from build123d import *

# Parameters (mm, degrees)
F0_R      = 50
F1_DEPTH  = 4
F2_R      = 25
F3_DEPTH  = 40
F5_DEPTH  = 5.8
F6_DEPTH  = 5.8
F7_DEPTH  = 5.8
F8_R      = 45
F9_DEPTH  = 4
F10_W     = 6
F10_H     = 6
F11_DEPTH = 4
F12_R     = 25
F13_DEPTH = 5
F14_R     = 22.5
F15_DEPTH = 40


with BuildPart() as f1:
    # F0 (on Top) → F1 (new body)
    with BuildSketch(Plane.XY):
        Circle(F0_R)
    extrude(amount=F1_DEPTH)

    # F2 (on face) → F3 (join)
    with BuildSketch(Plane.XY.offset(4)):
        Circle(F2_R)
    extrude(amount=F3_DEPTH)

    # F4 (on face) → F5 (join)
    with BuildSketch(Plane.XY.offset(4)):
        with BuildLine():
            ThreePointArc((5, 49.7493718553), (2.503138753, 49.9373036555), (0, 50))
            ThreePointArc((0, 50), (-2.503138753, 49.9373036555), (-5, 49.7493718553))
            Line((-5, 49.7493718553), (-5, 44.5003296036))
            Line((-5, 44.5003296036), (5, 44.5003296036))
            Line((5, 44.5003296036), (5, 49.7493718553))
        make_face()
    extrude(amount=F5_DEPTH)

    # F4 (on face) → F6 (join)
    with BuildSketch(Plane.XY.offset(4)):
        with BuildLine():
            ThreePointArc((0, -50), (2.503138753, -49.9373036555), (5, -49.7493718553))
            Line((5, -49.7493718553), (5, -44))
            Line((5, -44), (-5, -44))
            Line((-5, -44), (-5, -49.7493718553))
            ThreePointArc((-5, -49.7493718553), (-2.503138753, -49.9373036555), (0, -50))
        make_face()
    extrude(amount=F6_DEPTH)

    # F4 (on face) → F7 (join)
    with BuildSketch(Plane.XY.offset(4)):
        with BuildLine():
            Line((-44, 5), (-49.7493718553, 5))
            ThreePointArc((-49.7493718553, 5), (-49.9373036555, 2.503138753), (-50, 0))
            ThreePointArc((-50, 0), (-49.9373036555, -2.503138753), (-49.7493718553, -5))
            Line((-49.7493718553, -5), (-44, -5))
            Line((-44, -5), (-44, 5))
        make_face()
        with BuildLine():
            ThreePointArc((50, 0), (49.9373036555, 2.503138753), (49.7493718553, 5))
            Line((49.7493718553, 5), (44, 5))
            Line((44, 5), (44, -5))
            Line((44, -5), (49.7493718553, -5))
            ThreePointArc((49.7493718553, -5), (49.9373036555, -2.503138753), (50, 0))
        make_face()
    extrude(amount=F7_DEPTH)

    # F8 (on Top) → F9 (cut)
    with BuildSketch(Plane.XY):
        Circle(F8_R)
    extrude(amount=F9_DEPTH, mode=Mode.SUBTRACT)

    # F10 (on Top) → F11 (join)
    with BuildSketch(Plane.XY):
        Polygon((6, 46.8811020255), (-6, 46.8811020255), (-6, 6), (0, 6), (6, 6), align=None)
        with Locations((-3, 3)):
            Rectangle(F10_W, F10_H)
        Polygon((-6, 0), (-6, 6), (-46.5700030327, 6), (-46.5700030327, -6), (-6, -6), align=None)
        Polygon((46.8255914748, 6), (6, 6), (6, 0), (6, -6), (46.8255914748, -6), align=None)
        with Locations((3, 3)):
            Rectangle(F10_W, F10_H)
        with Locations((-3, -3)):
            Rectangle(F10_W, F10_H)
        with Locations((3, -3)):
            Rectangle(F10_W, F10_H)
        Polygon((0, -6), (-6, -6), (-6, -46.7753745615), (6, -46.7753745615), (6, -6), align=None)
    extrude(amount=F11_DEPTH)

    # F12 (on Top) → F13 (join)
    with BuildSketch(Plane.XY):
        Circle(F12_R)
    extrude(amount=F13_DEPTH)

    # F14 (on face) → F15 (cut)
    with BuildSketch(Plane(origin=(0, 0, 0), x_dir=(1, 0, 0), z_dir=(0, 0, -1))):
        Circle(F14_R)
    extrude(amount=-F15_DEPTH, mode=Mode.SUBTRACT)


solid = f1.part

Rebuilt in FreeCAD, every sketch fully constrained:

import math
import FreeCAD as App
import Part
import Sketcher
from FreeCAD import Vector
Q = App.Units.Quantity


def add_polygon(sketch, points):
    """Adds a closed chain of lines whose ends are joined by coincident constraints."""
    first, n = sketch.GeometryCount, len(points)
    for a, b in zip(points, points[1:] + points[:1]):
        sketch.addGeometry(Part.LineSegment(App.Vector(*a, 0), App.Vector(*b, 0)), False)
    for i in range(n):
        sketch.addConstraint(Sketcher.Constraint("Coincident", first + i, 2, first + (i + 1) % n, 1))

doc = App.newDocument("Part")
body = doc.addObject("PartDesign::Body", "Body")
body.AllowCompound = True

# Sketch on XY plane
sketch1 = body.newObject("Sketcher::SketchObject", "Sketch")
sketch1.AttachmentSupport = (doc.getObject("XY_Plane"), [""])
sketch1.MapMode = "FlatFace"
sketch1.addGeometry(Part.Circle(Vector(0, 0, 0), Vector(0, 0, 1), 50), False)
sketch1.addConstraint([
    Sketcher.Constraint("Coincident", 0, 3, -1, 1),
    Sketcher.Constraint("Diameter", 0, Q("100 mm")),
])
pad1 = body.newObject("PartDesign::Pad", "Pad")
pad1.Profile = sketch1
pad1.Length = 4

# Sketch on XY plane
sketch2 = body.newObject("Sketcher::SketchObject", "Sketch001")
sketch2.AttachmentSupport = (doc.getObject("XY_Plane"), [""])
sketch2.MapMode = "FlatFace"
sketch2.AttachmentOffset = App.Placement(Vector(0, 0, 4), App.Rotation())
sketch2.addGeometry(Part.Circle(Vector(0, 0, 0), Vector(0, 0, 1), 25), False)
sketch2.addConstraint([
    Sketcher.Constraint("Coincident", 0, 3, -1, 1),
    Sketcher.Constraint("Diameter", 0, Q("50 mm")),
])
pad2 = body.newObject("PartDesign::Pad", "Pad001")
pad2.Profile = sketch2
pad2.Length = 40

# Sketch on XY plane
sketch3 = body.newObject("Sketcher::SketchObject", "Sketch002")
sketch3.AttachmentSupport = (doc.getObject("XY_Plane"), [""])
sketch3.MapMode = "FlatFace"
sketch3.AttachmentOffset = App.Placement(Vector(0, 0, 4), App.Rotation())
sketch3.addGeometry([
    Part.ArcOfCircle(Part.Circle(Vector(0, 0, 0), Vector(0, 0, 1), 50), math.radians(84.26), math.radians(90)),  # 0
    Part.ArcOfCircle(Part.Circle(Vector(0, 0, 0), Vector(0, 0, 1), 50), math.radians(90), math.radians(95.74)),  # 1
    Part.LineSegment(Vector(-5, 50, 0), Vector(-5, 45, 0)),  # 2
    Part.LineSegment(Vector(-5, 45, 0), Vector(5, 45, 0)),  # 3
    Part.LineSegment(Vector(5, 45, 0), Vector(5, 50, 0)),  # 4
], False)
sketch3.addConstraint([
    Sketcher.Constraint("Tangent", 0, 2, 1, 1),
    Sketcher.Constraint("Coincident", 1, 2, 2, 1),
    Sketcher.Constraint("Coincident", 2, 2, 3, 1),
    Sketcher.Constraint("Coincident", 3, 2, 4, 1),
    Sketcher.Constraint("Coincident", 4, 2, 0, 1),
    Sketcher.Constraint("Vertical", 2),
    Sketcher.Constraint("Horizontal", 3),
    Sketcher.Constraint("Vertical", 4),
    Sketcher.Constraint("Coincident", 0, 3, -1, 1),
    Sketcher.Constraint("Equal", 0, 1),
    Sketcher.Constraint("PointOnObject", 0, 2, -2),
    Sketcher.Constraint("Horizontal", 1, 2, 4, 2),
    Sketcher.Constraint("Radius", 0, Q("50 mm")),
    Sketcher.Constraint("DistanceX", 3, 1, 3, 2, Q("10 mm")),
    Sketcher.Constraint("DistanceY", 2, 2, 2, 1, Q("5.249042 mm")),
])
pad3 = body.newObject("PartDesign::Pad", "Pad002")
pad3.Profile = sketch3
pad3.Length = 5.8

# Sketch on XY plane
sketch4 = body.newObject("Sketcher::SketchObject", "Sketch003")
sketch4.AttachmentSupport = (doc.getObject("XY_Plane"), [""])
sketch4.MapMode = "FlatFace"
sketch4.AttachmentOffset = App.Placement(Vector(0, 0, 4), App.Rotation())
sketch4.addGeometry([
    Part.ArcOfCircle(Part.Circle(Vector(0, 0, 0), Vector(0, 0, 1), 50), math.radians(-90), math.radians(-84.26)),  # 0
    Part.LineSegment(Vector(5, -50, 0), Vector(5, -44, 0)),  # 1
    Part.LineSegment(Vector(5, -44, 0), Vector(-5, -44, 0)),  # 2
    Part.LineSegment(Vector(-5, -44, 0), Vector(-5, -50, 0)),  # 3
    Part.ArcOfCircle(Part.Circle(Vector(0, 0, 0), Vector(0, 0, 1), 50), math.radians(-95.74), math.radians(-90)),  # 4
], False)
sketch4.addConstraint([
    Sketcher.Constraint("Coincident", 0, 2, 1, 1),
    Sketcher.Constraint("Coincident", 1, 2, 2, 1),
    Sketcher.Constraint("Coincident", 2, 2, 3, 1),
    Sketcher.Constraint("Coincident", 3, 2, 4, 1),
    Sketcher.Constraint("Tangent", 4, 2, 0, 1),
    Sketcher.Constraint("Vertical", 1),
    Sketcher.Constraint("Horizontal", 2),
    Sketcher.Constraint("Vertical", 3),
    Sketcher.Constraint("Coincident", 0, 3, -1, 1),
    Sketcher.Constraint("Equal", 0, 4),
    Sketcher.Constraint("PointOnObject", 4, 2, -2),
    Sketcher.Constraint("Horizontal", 0, 2, 3, 2),
    Sketcher.Constraint("Radius", 0, Q("50 mm")),
    Sketcher.Constraint("DistanceX", 2, 2, 2, 1, Q("10 mm")),
    Sketcher.Constraint("DistanceY", 1, 2, -1, 1, Q("44 mm")),
])
pad4 = body.newObject("PartDesign::Pad", "Pad003")
pad4.Profile = sketch4
pad4.Length = 5.8

# Sketch on XY plane
sketch5 = body.newObject("Sketcher::SketchObject", "Sketch004")
sketch5.AttachmentSupport = (doc.getObject("XY_Plane"), [""])
sketch5.MapMode = "FlatFace"
sketch5.AttachmentOffset = App.Placement(Vector(0, 0, 4), App.Rotation())
sketch5.addGeometry([
    Part.LineSegment(Vector(-44, 5, 0), Vector(-50, 5, 0)),  # 0
    Part.ArcOfCircle(Part.Circle(Vector(0, 0, 0), Vector(0, 0, 1), 50), math.radians(174.26), math.radians(180)),  # 1
    Part.ArcOfCircle(Part.Circle(Vector(0, 0, 0), Vector(0, 0, 1), 50), math.radians(180), math.radians(185.74)),  # 2
    Part.LineSegment(Vector(-50, -5, 0), Vector(-44, -5, 0)),  # 3
    Part.LineSegment(Vector(-44, -5, 0), Vector(-44, 5, 0)),  # 4
    Part.ArcOfCircle(Part.Circle(Vector(0, 0, 0), Vector(0, 0, 1), 50), math.radians(0), math.radians(5.74)),  # 5
    Part.LineSegment(Vector(50, 5, 0), Vector(44, 5, 0)),  # 6
    Part.LineSegment(Vector(44, 5, 0), Vector(44, -5, 0)),  # 7
    Part.LineSegment(Vector(44, -5, 0), Vector(50, -5, 0)),  # 8
    Part.ArcOfCircle(Part.Circle(Vector(0, 0, 0), Vector(0, 0, 1), 50), math.radians(-5.74), math.radians(0)),  # 9
], False)
sketch5.addConstraint([
    Sketcher.Constraint("Coincident", 0, 2, 1, 1),
    Sketcher.Constraint("Tangent", 1, 2, 2, 1),
    Sketcher.Constraint("Coincident", 2, 2, 3, 1),
    Sketcher.Constraint("Coincident", 3, 2, 4, 1),
    Sketcher.Constraint("Coincident", 4, 2, 0, 1),
    Sketcher.Constraint("Coincident", 5, 2, 6, 1),
    Sketcher.Constraint("Coincident", 6, 2, 7, 1),
    Sketcher.Constraint("Coincident", 7, 2, 8, 1),
    Sketcher.Constraint("Coincident", 8, 2, 9, 1),
    Sketcher.Constraint("Tangent", 9, 2, 5, 1),
    Sketcher.Constraint("Horizontal", 0),
    Sketcher.Constraint("Horizontal", 3),
    Sketcher.Constraint("Vertical", 4),
    Sketcher.Constraint("Horizontal", 6),
    Sketcher.Constraint("Vertical", 7),
    Sketcher.Constraint("Horizontal", 8),
    Sketcher.Constraint("Coincident", 1, 3, -1, 1),
    Sketcher.Constraint("Coincident", 5, 3, -1, 1),
    Sketcher.Constraint("Equal", 1, 2),
    Sketcher.Constraint("Equal", 2, 5),
    Sketcher.Constraint("Equal", 5, 9),
    Sketcher.Constraint("Symmetric", 3, 2, 6, 2, -1, 1),
    Sketcher.Constraint("PointOnObject", 1, 2, -1),
    Sketcher.Constraint("PointOnObject", 9, 2, -1),
    Sketcher.Constraint("Horizontal", 4, 2, 5, 2),
    Sketcher.Constraint("Horizontal", 3, 2, 7, 2),
    Sketcher.Constraint("Radius", 1, Q("50 mm")),
    Sketcher.Constraint("DistanceY", 4, 1, 4, 2, Q("10 mm")),
    Sketcher.Constraint("DistanceX", 3, 2, -1, 1, Q("44 mm")),
])
pad5 = body.newObject("PartDesign::Pad", "Pad004")
pad5.Profile = sketch5
pad5.Length = 5.8

# Sketch on XY plane
sketch6 = body.newObject("Sketcher::SketchObject", "Sketch005")
sketch6.AttachmentSupport = (doc.getObject("XY_Plane"), [""])
sketch6.MapMode = "FlatFace"
sketch6.addGeometry(Part.Circle(Vector(0, 0, 0), Vector(0, 0, 1), 45), False)
sketch6.addConstraint([
    Sketcher.Constraint("Coincident", 0, 3, -1, 1),
    Sketcher.Constraint("Diameter", 0, Q("90 mm")),
])
pocket1 = body.newObject("PartDesign::Pocket", "Pocket")
pocket1.Profile = sketch6
pocket1.Length = 4
pocket1.Reversed = True

# Sketch on XY plane
sketch7 = body.newObject("Sketcher::SketchObject", "Sketch006")
sketch7.AttachmentSupport = (doc.getObject("XY_Plane"), [""])
sketch7.MapMode = "FlatFace"
add_polygon(sketch7, [(6, 47), (-6, 47), (-6, 6), (-47, 6), (-47, -6), (-6, -6), (-6, -47), (6, -47), (6, -6), (47, -6), (47, 6), (6, 6)])  # lines 0-11
sketch7.addConstraint([
    Sketcher.Constraint("Horizontal", 0),
    Sketcher.Constraint("Vertical", 1),
    Sketcher.Constraint("Horizontal", 2),
    Sketcher.Constraint("Vertical", 3),
    Sketcher.Constraint("Horizontal", 4),
    Sketcher.Constraint("Vertical", 5),
    Sketcher.Constraint("Horizontal", 6),
    Sketcher.Constraint("Vertical", 7),
    Sketcher.Constraint("Horizontal", 8),
    Sketcher.Constraint("Vertical", 9),
    Sketcher.Constraint("Horizontal", 10),
    Sketcher.Constraint("Vertical", 11),
    Sketcher.Constraint("Symmetric", 1, 2, 7, 2, -1, 1),
    Sketcher.Constraint("Symmetric", 4, 2, 10, 2, -1, 1),
    Sketcher.Constraint("Symmetric", 4, 2, 7, 2, -2),
    Sketcher.Constraint("Equal", 6, 3),
    Sketcher.Constraint("DistanceX", 0, 2, 0, 1, Q("12 mm")),
    Sketcher.Constraint("DistanceX", 8, 1, 8, 2, Q("40.825591 mm")),
    Sketcher.Constraint("DistanceX", 2, 2, 2, 1, Q("40.570003 mm")),
    Sketcher.Constraint("DistanceY", 1, 2, 1, 1, Q("40.881102 mm")),
    Sketcher.Constraint("DistanceY", 5, 2, 5, 1, Q("40.775375 mm")),
])
pad6 = body.newObject("PartDesign::Pad", "Pad005")
pad6.Profile = sketch7
pad6.Length = 4

# Sketch on XY plane
sketch8 = body.newObject("Sketcher::SketchObject", "Sketch007")
sketch8.AttachmentSupport = (doc.getObject("XY_Plane"), [""])
sketch8.MapMode = "FlatFace"
sketch8.addGeometry(Part.Circle(Vector(0, 0, 0), Vector(0, 0, 1), 25), False)
sketch8.addConstraint([
    Sketcher.Constraint("Coincident", 0, 3, -1, 1),
    Sketcher.Constraint("Diameter", 0, Q("50 mm")),
])
pad7 = body.newObject("PartDesign::Pad", "Pad006")
pad7.Profile = sketch8
pad7.Length = 5

# Sketch on XY plane
sketch9 = body.newObject("Sketcher::SketchObject", "Sketch008")
sketch9.AttachmentSupport = (doc.getObject("XY_Plane"), [""])
sketch9.MapMode = "FlatFace"
sketch9.addGeometry(Part.Circle(Vector(0, 0, 0), Vector(0, 0, 1), 22), False)
sketch9.addConstraint([
    Sketcher.Constraint("Coincident", 0, 3, -1, 1),
    Sketcher.Constraint("Diameter", 0, Q("45 mm")),
])
pocket2 = body.newObject("PartDesign::Pocket", "Pocket001")
pocket2.Profile = sketch9
pocket2.Length = 40
pocket2.Reversed = True

doc.recompute()
